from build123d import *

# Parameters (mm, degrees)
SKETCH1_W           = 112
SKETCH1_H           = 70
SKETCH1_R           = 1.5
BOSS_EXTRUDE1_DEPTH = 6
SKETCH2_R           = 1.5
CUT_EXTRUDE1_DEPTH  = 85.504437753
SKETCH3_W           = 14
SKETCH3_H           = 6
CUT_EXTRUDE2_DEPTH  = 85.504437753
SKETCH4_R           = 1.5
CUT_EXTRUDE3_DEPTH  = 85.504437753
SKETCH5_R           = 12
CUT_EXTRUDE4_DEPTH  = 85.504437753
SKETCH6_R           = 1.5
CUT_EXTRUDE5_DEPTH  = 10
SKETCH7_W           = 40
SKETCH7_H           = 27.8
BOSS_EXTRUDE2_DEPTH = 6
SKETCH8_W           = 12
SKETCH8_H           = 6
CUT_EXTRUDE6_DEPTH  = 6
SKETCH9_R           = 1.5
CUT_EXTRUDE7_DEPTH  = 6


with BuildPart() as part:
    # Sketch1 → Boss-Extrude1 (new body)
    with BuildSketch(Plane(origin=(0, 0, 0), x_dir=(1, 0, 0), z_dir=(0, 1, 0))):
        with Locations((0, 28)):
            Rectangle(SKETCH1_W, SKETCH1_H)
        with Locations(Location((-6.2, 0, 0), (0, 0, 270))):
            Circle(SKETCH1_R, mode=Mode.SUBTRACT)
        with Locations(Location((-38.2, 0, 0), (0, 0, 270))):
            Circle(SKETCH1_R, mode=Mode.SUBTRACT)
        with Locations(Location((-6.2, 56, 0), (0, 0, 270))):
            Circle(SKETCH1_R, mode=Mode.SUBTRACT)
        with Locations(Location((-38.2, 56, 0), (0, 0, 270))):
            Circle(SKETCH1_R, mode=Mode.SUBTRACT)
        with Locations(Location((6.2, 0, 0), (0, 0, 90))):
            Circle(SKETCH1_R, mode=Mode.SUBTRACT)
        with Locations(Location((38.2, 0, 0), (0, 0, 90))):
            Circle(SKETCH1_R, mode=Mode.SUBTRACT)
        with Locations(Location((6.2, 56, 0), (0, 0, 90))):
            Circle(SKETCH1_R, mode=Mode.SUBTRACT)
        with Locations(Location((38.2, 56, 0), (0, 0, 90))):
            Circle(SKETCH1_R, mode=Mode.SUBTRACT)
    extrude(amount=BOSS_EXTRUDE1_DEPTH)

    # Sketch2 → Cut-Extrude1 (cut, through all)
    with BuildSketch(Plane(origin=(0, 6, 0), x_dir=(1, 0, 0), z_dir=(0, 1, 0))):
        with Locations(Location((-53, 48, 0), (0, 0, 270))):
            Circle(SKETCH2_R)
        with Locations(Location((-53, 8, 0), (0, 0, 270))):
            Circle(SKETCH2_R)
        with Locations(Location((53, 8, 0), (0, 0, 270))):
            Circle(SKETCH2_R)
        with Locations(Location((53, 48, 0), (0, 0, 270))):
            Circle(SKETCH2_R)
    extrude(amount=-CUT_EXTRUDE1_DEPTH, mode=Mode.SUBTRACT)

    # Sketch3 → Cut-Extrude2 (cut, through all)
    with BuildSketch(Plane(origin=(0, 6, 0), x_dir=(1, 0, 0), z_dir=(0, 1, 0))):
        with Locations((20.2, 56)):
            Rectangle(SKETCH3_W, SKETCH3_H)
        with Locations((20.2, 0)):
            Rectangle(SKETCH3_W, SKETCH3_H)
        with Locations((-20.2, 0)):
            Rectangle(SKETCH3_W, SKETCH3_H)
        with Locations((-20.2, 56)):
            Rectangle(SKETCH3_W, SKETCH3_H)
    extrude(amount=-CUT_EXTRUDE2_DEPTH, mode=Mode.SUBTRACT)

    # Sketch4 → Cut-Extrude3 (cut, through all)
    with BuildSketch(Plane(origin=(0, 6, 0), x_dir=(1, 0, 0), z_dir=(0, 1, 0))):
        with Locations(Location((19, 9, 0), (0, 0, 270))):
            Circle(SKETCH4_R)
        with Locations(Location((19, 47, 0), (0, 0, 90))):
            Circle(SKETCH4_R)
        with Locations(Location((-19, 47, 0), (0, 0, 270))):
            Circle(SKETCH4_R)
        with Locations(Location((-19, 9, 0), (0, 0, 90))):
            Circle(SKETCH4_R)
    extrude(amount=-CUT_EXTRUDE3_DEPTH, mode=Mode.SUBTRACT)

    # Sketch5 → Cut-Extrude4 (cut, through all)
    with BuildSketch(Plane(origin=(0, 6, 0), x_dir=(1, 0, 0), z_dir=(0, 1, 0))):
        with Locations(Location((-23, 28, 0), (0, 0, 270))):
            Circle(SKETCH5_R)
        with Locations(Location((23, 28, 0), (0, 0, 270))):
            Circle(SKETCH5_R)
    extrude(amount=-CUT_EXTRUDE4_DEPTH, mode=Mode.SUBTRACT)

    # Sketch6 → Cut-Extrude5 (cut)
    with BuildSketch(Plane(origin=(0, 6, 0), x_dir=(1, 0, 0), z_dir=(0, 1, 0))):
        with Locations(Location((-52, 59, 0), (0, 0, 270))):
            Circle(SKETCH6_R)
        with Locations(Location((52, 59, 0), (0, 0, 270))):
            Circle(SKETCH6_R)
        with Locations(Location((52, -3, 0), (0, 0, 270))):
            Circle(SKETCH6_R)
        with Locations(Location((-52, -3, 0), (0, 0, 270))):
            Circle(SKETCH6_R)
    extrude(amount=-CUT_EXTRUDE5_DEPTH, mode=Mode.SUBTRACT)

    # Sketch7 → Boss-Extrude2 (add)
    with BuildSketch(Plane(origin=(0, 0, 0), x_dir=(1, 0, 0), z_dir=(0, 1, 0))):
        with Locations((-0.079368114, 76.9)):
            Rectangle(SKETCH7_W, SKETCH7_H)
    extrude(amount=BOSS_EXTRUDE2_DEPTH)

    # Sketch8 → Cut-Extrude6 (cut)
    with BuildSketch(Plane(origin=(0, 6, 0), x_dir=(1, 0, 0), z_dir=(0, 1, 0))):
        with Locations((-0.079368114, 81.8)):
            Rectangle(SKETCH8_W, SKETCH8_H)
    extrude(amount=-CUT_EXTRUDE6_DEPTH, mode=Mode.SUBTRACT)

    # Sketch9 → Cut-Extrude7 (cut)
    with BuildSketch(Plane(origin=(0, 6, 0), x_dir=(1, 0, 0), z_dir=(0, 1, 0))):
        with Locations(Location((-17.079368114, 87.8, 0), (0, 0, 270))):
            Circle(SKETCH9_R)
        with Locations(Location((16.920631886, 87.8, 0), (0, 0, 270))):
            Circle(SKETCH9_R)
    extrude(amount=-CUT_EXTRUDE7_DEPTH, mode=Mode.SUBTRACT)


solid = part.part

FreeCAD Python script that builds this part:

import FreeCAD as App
import Part
import Sketcher

V = App.Vector


def add_polygon(sketch, points):
    """Adds a closed chain of lines whose ends are joined by coincident constraints."""
    first, n = sketch.GeometryCount, len(points)
    for a, b in zip(points, points[1:] + points[:1]):
        sketch.addGeometry(Part.LineSegment(App.Vector(*a, 0), App.Vector(*b, 0)), False)
    for i in range(n):
        sketch.addConstraint(Sketcher.Constraint("Coincident", first + i, 2, first + (i + 1) % n, 1))

doc = App.newDocument("Part")
params = doc.addObject("Spreadsheet::Sheet", "Params")
for row, (alias, value) in enumerate([
    ("sketch1_diameter", "3 mm"),
    ("sketch1_width", "112 mm"),
    ("sketch1_height", "70 mm"),
    ("pad1_length", "6 mm"),
    ("sketch2_diameter", "3 mm"),
    ("sketch3_width", "14 mm"),
    ("sketch3_height", "6 mm"),
    ("sketch4_diameter", "3 mm"),
    ("sketch5_diameter", "24 mm"),
    ("sketch6_diameter", "3 mm"),
    ("pocket5_length", "10 mm"),
    ("sketch7_width", "40 mm"),
    ("sketch7_height", "27.8 mm"),
    ("pad2_length", "6 mm"),
    ("sketch8_width", "12 mm"),
    ("sketch8_height", "6 mm"),
    ("pocket6_length", "6 mm"),
    ("sketch9_diameter", "3 mm"),
    ("pocket7_length", "6 mm"),
], start=1):
    params.set(f"A{row}", alias)
    params.set(f"B{row}", "=" + value)
    params.setAlias(f"B{row}", alias)

body = doc.addObject("PartDesign::Body", "Body")

# Sketch on XZ plane
sketch1 = body.newObject("Sketcher::SketchObject", "Sketch")
sketch1.AttachmentSupport = (doc.getObject("XZ_Plane"), [""])
sketch1.MapMode = "FlatFace"
add_polygon(sketch1, [(-56, -63), (-56, 7), (56, 7), (56, -63)])  # lines 0-3
sketch1.addGeometry(Part.Circle(V(-38.2, 0, 0), V(0, 0, 1), 1.5), False)  # 4
sketch1.addGeometry(Part.Circle(V(-6.2, 0, 0), V(0, 0, 1), 1.5), False)  # 5
sketch1.addGeometry(Part.Circle(V(6.2, 0, 0), V(0, 0, 1), 1.5), False)  # 6
sketch1.addGeometry(Part.Circle(V(38.2, 0, 0), V(0, 0, 1), 1.5), False)  # 7
sketch1.addGeometry(Part.Circle(V(-38.2, -56, 0), V(0, 0, 1), 1.5), False)  # 8
sketch1.addGeometry(Part.Circle(V(-6.2, -56, 0), V(0, 0, 1), 1.5), False)  # 9
sketch1.addGeometry(Part.Circle(V(6.2, -56, 0), V(0, 0, 1), 1.5), False)  # 10
sketch1.addGeometry(Part.Circle(V(38.2, -56, 0), V(0, 0, 1), 1.5), False)  # 11
sketch1.addConstraint(Sketcher.Constraint("Vertical", 0))
sketch1.addConstraint(Sketcher.Constraint("Horizontal", 1))
sketch1.addConstraint(Sketcher.Constraint("Vertical", 2))
sketch1.addConstraint(Sketcher.Constraint("Horizontal", 3))
sketch1.addConstraint(Sketcher.Constraint("Equal", 4, 5))
sketch1.addConstraint(Sketcher.Constraint("Equal", 5, 6))
sketch1.addConstraint(Sketcher.Constraint("Equal", 6, 7))
sketch1.addConstraint(Sketcher.Constraint("Equal", 7, 8))
sketch1.addConstraint(Sketcher.Constraint("Equal", 8, 9))
sketch1.addConstraint(Sketcher.Constraint("Equal", 9, 10))
sketch1.addConstraint(Sketcher.Constraint("Equal", 10, 11))
sketch1.addConstraint(Sketcher.Constraint("Symmetric", 5, 3, 6, 3, -1, 1))
sketch1.addConstraint(Sketcher.Constraint("Symmetric", 4, 3, 7, 3, -1, 1))
sketch1.addConstraint(Sketcher.Constraint("Symmetric", 9, 3, 10, 3, -2))
sketch1.addConstraint(Sketcher.Constraint("Symmetric", 8, 3, 11, 3, -2))
sketch1.addConstraint(Sketcher.Constraint("PointOnObject", 4, 3, -1))
sketch1.addConstraint(Sketcher.Constraint("PointOnObject", 5, 3, -1))
sketch1.addConstraint(Sketcher.Constraint("Horizontal", 8, 3, 9, 3))
sketch1.addConstraint(Sketcher.Constraint("Vertical", 4, 3, 8, 3))
sketch1.addConstraint(Sketcher.Constraint("Vertical", 5, 3, 9, 3))
sketch1.addConstraint(Sketcher.Constraint("Diameter", 4, 3.0))
sketch1.addConstraint(Sketcher.Constraint("DistanceX", 1, 1, 1, 2, 112.0))
sketch1.addConstraint(Sketcher.Constraint("DistanceY", 0, 1, 0, 2, 70.0))
sketch1.addConstraint(Sketcher.Constraint("DistanceY", 8, 3, -1, 1, 56.0))
sketch1.addConstraint(Sketcher.Constraint("DistanceX", 0, 2, -1, 1, 56.0))
sketch1.addConstraint(Sketcher.Constraint("DistanceY", -1, 1, 0, 2, 7.0))
sketch1.addConstraint(Sketcher.Constraint("DistanceX", 4, 3, 5, 3, 32.0))
sketch1.addConstraint(Sketcher.Constraint("DistanceX", 4, 3, -1, 1, 38.2))
sketch1.setExpression("Constraints[24]", "Params.sketch1_diameter")
sketch1.setExpression("Constraints[25]", "Params.sketch1_width")
sketch1.setExpression("Constraints[26]", "Params.sketch1_height")
pad1 = body.newObject("PartDesign::Pad", "Pad")
pad1.Profile = sketch1
pad1.setExpression("Length", "Params.pad1_length")
pad1.Reversed = True

# Sketch on XZ plane
sketch2 = body.newObject("Sketcher::SketchObject", "Sketch001")
sketch2.AttachmentSupport = (doc.getObject("XZ_Plane"), [""])
sketch2.MapMode = "FlatFace"
sketch2.AttachmentOffset = App.Placement(V(0, 0, -6), App.Rotation())
sketch2.addGeometry(Part.Circle(V(-53, -48, 0), V(0, 0, 1), 1.5), False)
sketch2.addGeometry(Part.Circle(V(-53, -8, 0), V(0, 0, 1), 1.5), False)
sketch2.addGeometry(Part.Circle(V(53, -8, 0), V(0, 0, 1), 1.5), False)
sketch2.addGeometry(Part.Circle(V(53, -48, 0), V(0, 0, 1), 1.5), False)
sketch2.addConstraint(Sketcher.Constraint("Equal", 0, 1))
sketch2.addConstraint(Sketcher.Constraint("Equal", 1, 2))
sketch2.addConstraint(Sketcher.Constraint("Equal", 2, 3))
sketch2.addConstraint(Sketcher.Constraint("Symmetric", 1, 3, 2, 3, -2))
sketch2.addConstraint(Sketcher.Constraint("Symmetric", 0, 3, 3, 3, -2))
sketch2.addConstraint(Sketcher.Constraint("Vertical", 0, 3, 1, 3))
sketch2.addConstraint(Sketcher.Constraint("Diameter", 0, 3.0))
sketch2.addConstraint(Sketcher.Constraint("DistanceX", 0, 3, -1, 1, 53.0))
sketch2.addConstraint(Sketcher.Constraint("DistanceY", 0, 3, -1, 1, 48.0))
sketch2.addConstraint(Sketcher.Constraint("DistanceY", 1, 3, -1, 1, 8.0))
sketch2.setExpression("Constraints[6]", "Params.sketch2_diameter")
pocket1 = body.newObject("PartDesign::Pocket", "Pocket")
pocket1.Profile = sketch2
pocket1.Type = "ThroughAll"
pocket1.Reversed = True

# Sketch on XZ plane
sketch3 = body.newObject("Sketcher::SketchObject", "Sketch002")
sketch3.AttachmentSupport = (doc.getObject("XZ_Plane"), [""])
sketch3.MapMode = "FlatFace"
sketch3.AttachmentOffset = App.Placement(V(0, 0, -6), App.Rotation())
add_polygon(sketch3, [(13.2, -59), (13.2, -53), (27.2, -53), (27.2, -59)])  # lines 0-3
add_polygon(sketch3, [(13.2, -3), (13.2, 3), (27.2, 3), (27.2, -3)])  # lines 4-7
add_polygon(sketch3, [(-27.2, -3), (-27.2, 3), (-13.2, 3), (-13.2, -3)])  # lines 8-11
add_polygon(sketch3, [(-27.2, -59), (-27.2, -53), (-13.2, -53), (-13.2, -59)])  # lines 12-15
sketch3.addConstraint(Sketcher.Constraint("Vertical", 0))
sketch3.addConstraint(Sketcher.Constraint("Horizontal", 1))
sketch3.addConstraint(Sketcher.Constraint("Vertical", 2))
sketch3.addConstraint(Sketcher.Constraint("Horizontal", 3))
sketch3.addConstraint(Sketcher.Constraint("Vertical", 4))
sketch3.addConstraint(Sketcher.Constraint("Horizontal", 5))
sketch3.addConstraint(Sketcher.Constraint("Vertical", 6))
sketch3.addConstraint(Sketcher.Constraint("Horizontal", 7))
sketch3.addConstraint(Sketcher.Constraint("Vertical", 8))
sketch3.addConstraint(Sketcher.Constraint("Horizontal", 9))
sketch3.addConstraint(Sketcher.Constraint("Vertical", 10))
sketch3.addConstraint(Sketcher.Constraint("Horizontal", 11))
sketch3.addConstraint(Sketcher.Constraint("Vertical", 12))
sketch3.addConstraint(Sketcher.Constraint("Horizontal", 13))
sketch3.addConstraint(Sketcher.Constraint("Vertical", 14))
sketch3.addConstraint(Sketcher.Constraint("Horizontal", 15))
sketch3.addConstraint(Sketcher.Constraint("Symmetric", 6, 2, 8, 2, -1, 1))
sketch3.addConstraint(Sketcher.Constraint("Symmetric", 4, 2, 10, 2, -1, 1))
sketch3.addConstraint(Sketcher.Constraint("Symmetric", 1, 2, 12, 2, -2))
sketch3.addConstraint(Sketcher.Constraint("Symmetric", 3, 2, 14, 2, -2))
sketch3.addConstraint(Sketcher.Constraint("Horizontal", 5, 2, 8, 2))
sketch3.addConstraint(Sketcher.Constraint("Vertical", 3, 2, 4, 2))
sketch3.addConstraint(Sketcher.Constraint("Vertical", 2, 2, 5, 2))
sketch3.addConstraint(Sketcher.Constraint("Equal", 2, 4))
sketch3.addConstraint(Sketcher.Constraint("DistanceX", 1, 1, 1, 2, 14.0))
sketch3.addConstraint(Sketcher.Constraint("DistanceY", 0, 1, 0, 2, 6.0))
sketch3.addConstraint(Sketcher.Constraint("DistanceY", 0, 2, -1, 1, 53.0))
sketch3.addConstraint(Sketcher.Constraint("DistanceX", -1, 1, 0, 2, 13.2))
sketch3.setExpression("Constraints[40]", "Params.sketch3_width")
sketch3.setExpression("Constraints[41]", "Params.sketch3_height")
pocket2 = body.newObject("PartDesign::Pocket", "Pocket001")
pocket2.Profile = sketch3
pocket2.Type = "ThroughAll"
pocket2.Reversed = True

# Sketch on XZ plane
sketch4 = body.newObject("Sketcher::SketchObject", "Sketch003")
sketch4.AttachmentSupport = (doc.getObject("XZ_Plane"), [""])
sketch4.MapMode = "FlatFace"
sketch4.AttachmentOffset = App.Placement(V(0, 0, -6), App.Rotation())
sketch4.addGeometry(Part.Circle(V(19, -9, 0), V(0, 0, 1), 1.5), False)
sketch4.addGeometry(Part.Circle(V(19, -47, 0), V(0, 0, 1), 1.5), False)
sketch4.addGeometry(Part.Circle(V(-19, -47, 0), V(0, 0, 1), 1.5), False)
sketch4.addGeometry(Part.Circle(V(-19, -9, 0), V(0, 0, 1), 1.5), False)
sketch4.addConstraint(Sketcher.Constraint("Equal", 0, 1))
sketch4.addConstraint(Sketcher.Constraint("Equal", 1, 2))
sketch4.addConstraint(Sketcher.Constraint("Equal", 2, 3))
sketch4.addConstraint(Sketcher.Constraint("Symmetric", 1, 3, 2, 3, -2))
sketch4.addConstraint(Sketcher.Constraint("Symmetric", 0, 3, 3, 3, -2))
sketch4.addConstraint(Sketcher.Constraint("Vertical", 0, 3, 1, 3))
sketch4.addConstraint(Sketcher.Constraint("Diameter", 0, 3.0))
sketch4.addConstraint(Sketcher.Constraint("DistanceX", -1, 1, 0, 3, 19.0))
sketch4.addConstraint(Sketcher.Constraint("DistanceY", 0, 3, -1, 1, 9.0))
sketch4.addConstraint(Sketcher.Constraint("DistanceY", 1, 3, -1, 1, 47.0))
sketch4.setExpression("Constraints[6]", "Params.sketch4_diameter")
pocket3 = body.newObject("PartDesign::Pocket", "Pocket002")
pocket3.Profile = sketch4
pocket3.Type = "ThroughAll"
pocket3.Reversed = True

# Sketch on XZ plane
sketch5 = body.newObject("Sketcher::SketchObject", "Sketch004")
sketch5.AttachmentSupport = (doc.getObject("XZ_Plane"), [""])
sketch5.MapMode = "FlatFace"
sketch5.AttachmentOffset = App.Placement(V(0, 0, -6), App.Rotation())
sketch5.addGeometry(Part.Circle(V(-23, -28, 0), V(0, 0, 1), 12), False)
sketch5.addGeometry(Part.Circle(V(23, -28, 0), V(0, 0, 1), 12), False)
sketch5.addConstraint(Sketcher.Constraint("Equal", 0, 1))
sketch5.addConstraint(Sketcher.Constraint("Symmetric", 0, 3, 1, 3, -2))
sketch5.addConstraint(Sketcher.Constraint("Diameter", 0, 24.0))
sketch5.addConstraint(Sketcher.Constraint("DistanceX", 0, 3, -1, 1, 23.0))
sketch5.addConstraint(Sketcher.Constraint("DistanceY", 0, 3, -1, 1, 28.0))
sketch5.setExpression("Constraints[2]", "Params.sketch5_diameter")
pocket4 = body.newObject("PartDesign::Pocket", "Pocket003")
pocket4.Profile = sketch5
pocket4.Type = "ThroughAll"
pocket4.Reversed = True

# Sketch on XZ plane
sketch6 = body.newObject("Sketcher::SketchObject", "Sketch005")
sketch6.AttachmentSupport = (doc.getObject("XZ_Plane"), [""])
sketch6.MapMode = "FlatFace"
sketch6.AttachmentOffset = App.Placement(V(0, 0, -6), App.Rotation())
sketch6.addGeometry(Part.Circle(V(-52, -59, 0), V(0, 0, 1), 1.5), False)
sketch6.addGeometry(Part.Circle(V(52, -59, 0), V(0, 0, 1), 1.5), False)
sketch6.addGeometry(Part.Circle(V(52, 3, 0), V(0, 0, 1), 1.5), False)
sketch6.addGeometry(Part.Circle(V(-52, 3, 0), V(0, 0, 1), 1.5), False)
sketch6.addConstraint(Sketcher.Constraint("Equal", 0, 1))
sketch6.addConstraint(Sketcher.Constraint("Equal", 1, 2))
sketch6.addConstraint(Sketcher.Constraint("Equal", 2, 3))
sketch6.addConstraint(Sketcher.Constraint("Symmetric", 0, 3, 1, 3, -2))
sketch6.addConstraint(Sketcher.Constraint("Symmetric", 2, 3, 3, 3, -2))
sketch6.addConstraint(Sketcher.Constraint("Vertical", 1, 3, 2, 3))
sketch6.addConstraint(Sketcher.Constraint("Diameter", 0, 3.0))
sketch6.addConstraint(Sketcher.Constraint("DistanceX", 0, 3, -1, 1, 52.0))
sketch6.addConstraint(Sketcher.Constraint("DistanceY", 0, 3, -1, 1, 59.0))
sketch6.addConstraint(Sketcher.Constraint("DistanceY", -1, 1, 2, 3, 3.0))
sketch6.setExpression("Constraints[6]", "Params.sketch6_diameter")
pocket5 = body.newObject("PartDesign::Pocket", "Pocket004")
pocket5.Profile = sketch6
pocket5.setExpression("Length", "Params.pocket5_length")
pocket5.Reversed = True

# Sketch on XZ plane
sketch7 = body.newObject("Sketcher::SketchObject", "Sketch006")
sketch7.AttachmentSupport = (doc.getObject("XZ_Plane"), [""])
sketch7.MapMode = "FlatFace"
add_polygon(sketch7, [(-20.079368, -90.8), (-20.079368, -63), (19.920632, -63), (19.920632, -90.8)])  # lines 0-3
sketch7.addConstraint(Sketcher.Constraint("Vertical", 0))
sketch7.addConstraint(Sketcher.Constraint("Horizontal", 1))
sketch7.addConstraint(Sketcher.Constraint("Vertical", 2))
sketch7.addConstraint(Sketcher.Constraint("Horizontal", 3))
sketch7.addConstraint(Sketcher.Constraint("DistanceX", 1, 1, 1, 2, 40.0))
sketch7.addConstraint(Sketcher.Constraint("DistanceY", 0, 1, 0, 2, 27.8))
sketch7.addConstraint(Sketcher.Constraint("DistanceY", 0, 2, -1, 1, 63.0))
sketch7.addConstraint(Sketcher.Constraint("DistanceX", 0, 2, -1, 1, 20.079368))
sketch7.setExpression("Constraints[8]", "Params.sketch7_width")
sketch7.setExpression("Constraints[9]", "Params.sketch7_height")
pad2 = body.newObject("PartDesign::Pad", "Pad001")
pad2.Profile = sketch7
pad2.setExpression("Length", "Params.pad2_length")
pad2.Reversed = True

# Sketch on XZ plane
sketch8 = body.newObject("Sketcher::SketchObject", "Sketch007")
sketch8.AttachmentSupport = (doc.getObject("XZ_Plane"), [""])
sketch8.MapMode = "FlatFace"
sketch8.AttachmentOffset = App.Placement(V(0, 0, -6), App.Rotation())
add_polygon(sketch8, [(-6.079368, -84.8), (-6.079368, -78.8), (5.920632, -78.8), (5.920632, -84.8)])  # lines 0-3
sketch8.addConstraint(Sketcher.Constraint("Vertical", 0))
sketch8.addConstraint(Sketcher.Constraint("Horizontal", 1))
sketch8.addConstraint(Sketcher.Constraint("Vertical", 2))
sketch8.addConstraint(Sketcher.Constraint("Horizontal", 3))
sketch8.addConstraint(Sketcher.Constraint("DistanceX", 1, 1, 1, 2, 12.0))
sketch8.addConstraint(Sketcher.Constraint("DistanceY", 0, 1, 0, 2, 6.0))
sketch8.addConstraint(Sketcher.Constraint("DistanceY", 0, 2, -1, 1, 78.8))
sketch8.addConstraint(Sketcher.Constraint("DistanceX", 0, 2, -1, 1, 6.079368))
sketch8.setExpression("Constraints[8]", "Params.sketch8_width")
sketch8.setExpression("Constraints[9]", "Params.sketch8_height")
pocket6 = body.newObject("PartDesign::Pocket", "Pocket005")
pocket6.Profile = sketch8
pocket6.setExpression("Length", "Params.pocket6_length")
pocket6.Reversed = True

# Sketch on XZ plane
sketch9 = body.newObject("Sketcher::SketchObject", "Sketch008")
sketch9.AttachmentSupport = (doc.getObject("XZ_Plane"), [""])
sketch9.MapMode = "FlatFace"
sketch9.AttachmentOffset = App.Placement(V(0, 0, -6), App.Rotation())
sketch9.addGeometry(Part.Circle(V(-17.079368, -87.8, 0), V(0, 0, 1), 1.5), False)
sketch9.addGeometry(Part.Circle(V(16.920632, -87.8, 0), V(0, 0, 1), 1.5), False)
sketch9.addConstraint(Sketcher.Constraint("Equal", 0, 1))
sketch9.addConstraint(Sketcher.Constraint("Horizontal", 0, 3, 1, 3))
sketch9.addConstraint(Sketcher.Constraint("Diameter", 0, 3.0))
sketch9.addConstraint(Sketcher.Constraint("DistanceX", 0, 3, 1, 3, 34.0))
sketch9.addConstraint(Sketcher.Constraint("DistanceY", 0, 3, -1, 1, 87.8))
sketch9.addConstraint(Sketcher.Constraint("DistanceX", 0, 3, -1, 1, 17.079368))
sketch9.setExpression("Constraints[2]", "Params.sketch9_diameter")
pocket7 = body.newObject("PartDesign::Pocket", "Pocket006")
pocket7.Profile = sketch9
pocket7.setExpression("Length", "Params.pocket7_length")
pocket7.Reversed = True

doc.recompute()
